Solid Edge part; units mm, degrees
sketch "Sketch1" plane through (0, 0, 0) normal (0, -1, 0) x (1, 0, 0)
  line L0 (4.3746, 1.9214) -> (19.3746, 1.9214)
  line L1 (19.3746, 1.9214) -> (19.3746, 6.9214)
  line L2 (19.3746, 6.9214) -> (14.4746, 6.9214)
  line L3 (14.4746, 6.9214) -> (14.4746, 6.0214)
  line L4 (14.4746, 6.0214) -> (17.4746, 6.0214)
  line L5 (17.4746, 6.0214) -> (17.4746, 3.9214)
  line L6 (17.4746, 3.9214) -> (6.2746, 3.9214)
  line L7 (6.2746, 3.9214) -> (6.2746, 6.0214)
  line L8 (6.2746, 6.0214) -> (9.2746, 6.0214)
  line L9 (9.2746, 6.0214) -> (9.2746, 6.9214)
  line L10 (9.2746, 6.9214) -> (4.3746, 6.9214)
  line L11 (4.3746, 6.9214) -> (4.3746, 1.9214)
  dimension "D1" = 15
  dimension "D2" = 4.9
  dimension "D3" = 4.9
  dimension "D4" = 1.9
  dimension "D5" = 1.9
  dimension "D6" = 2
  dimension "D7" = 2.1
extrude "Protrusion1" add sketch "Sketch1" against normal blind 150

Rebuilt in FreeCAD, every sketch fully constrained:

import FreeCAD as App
import Part
import Sketcher
Q = App.Units.Quantity

doc = App.newDocument("Part")
body = doc.addObject("PartDesign::Body", "Body")

# Sketch on XZ plane
sketch1 = body.newObject("Sketcher::SketchObject", "Sketch")
sketch1.AttachmentSupport = (doc.getObject("XZ_Plane"), [""])
sketch1.MapMode = "FlatFace"
sketch1.addGeometry(Part.LineSegment(App.Vector(4.4, 6.9, 0), App.Vector(4.4, 1.9, 0)), False)
sketch1.addGeometry(Part.LineSegment(App.Vector(4.4, 1.9, 0), App.Vector(19.4, 1.9, 0)), False)
sketch1.addGeometry(Part.LineSegment(App.Vector(19.4, 1.9, 0), App.Vector(19.4, 6.9, 0)), False)
sketch1.addGeometry(Part.LineSegment(App.Vector(19.4, 6.9, 0), App.Vector(14.5, 6.9, 0)), False)
sketch1.addGeometry(Part.LineSegment(App.Vector(14.5, 6.9, 0), App.Vector(14.5, 6, 0)), False)
sketch1.addGeometry(Part.LineSegment(App.Vector(14.5, 6, 0), App.Vector(17.5, 6, 0)), False)
sketch1.addGeometry(Part.LineSegment(App.Vector(17.5, 6, 0), App.Vector(17.5, 3.9, 0)), False)
sketch1.addGeometry(Part.LineSegment(App.Vector(17.5, 3.9, 0), App.Vector(6.3, 3.9, 0)), False)
sketch1.addGeometry(Part.LineSegment(App.Vector(6.3, 3.9, 0), App.Vector(6.3, 6, 0)), False)
sketch1.addGeometry(Part.LineSegment(App.Vector(6.3, 6, 0), App.Vector(9.3, 6, 0)), False)
sketch1.addGeometry(Part.LineSegment(App.Vector(9.3, 6, 0), App.Vector(9.3, 6.9, 0)), False)
sketch1.addGeometry(Part.LineSegment(App.Vector(9.3, 6.9, 0), App.Vector(4.4, 6.9, 0)), False)
sketch1.addConstraint(Sketcher.Constraint("Coincident", 0, 2, 1, 1))
sketch1.addConstraint(Sketcher.Constraint("Coincident", 1, 2, 2, 1))
sketch1.addConstraint(Sketcher.Constraint("Coincident", 2, 2, 3, 1))
sketch1.addConstraint(Sketcher.Constraint("Coincident", 3, 2, 4, 1))
sketch1.addConstraint(Sketcher.Constraint("Coincident", 4, 2, 5, 1))
sketch1.addConstraint(Sketcher.Constraint("Coincident", 5, 2, 6, 1))
sketch1.addConstraint(Sketcher.Constraint("Coincident", 6, 2, 7, 1))
sketch1.addConstraint(Sketcher.Constraint("Coincident", 7, 2, 8, 1))
sketch1.addConstraint(Sketcher.Constraint("Coincident", 8, 2, 9, 1))
sketch1.addConstraint(Sketcher.Constraint("Coincident", 9, 2, 10, 1))
sketch1.addConstraint(Sketcher.Constraint("Coincident", 10, 2, 11, 1))
sketch1.addConstraint(Sketcher.Constraint("Coincident", 11, 2, 0, 1))
sketch1.addConstraint(Sketcher.Constraint("Vertical", 0))
sketch1.addConstraint(Sketcher.Constraint("Horizontal", 1))
sketch1.addConstraint(Sketcher.Constraint("Vertical", 2))
sketch1.addConstraint(Sketcher.Constraint("Horizontal", 3))
sketch1.addConstraint(Sketcher.Constraint("Vertical", 4))
sketch1.addConstraint(Sketcher.Constraint("Horizontal", 5))
sketch1.addConstraint(Sketcher.Constraint("Vertical", 6))
sketch1.addConstraint(Sketcher.Constraint("Horizontal", 7))
sketch1.addConstraint(Sketcher.Constraint("Vertical", 8))
sketch1.addConstraint(Sketcher.Constraint("Horizontal", 9))
sketch1.addConstraint(Sketcher.Constraint("Vertical", 10))
sketch1.addConstraint(Sketcher.Constraint("Horizontal", 11))
sketch1.addConstraint(Sketcher.Constraint("Horizontal", 5, 2, 8, 2))
sketch1.addConstraint(Sketcher.Constraint("Horizontal", 3, 2, 10, 2))
sketch1.addConstraint(Sketcher.Constraint("Equal", 5, 9))
sketch1.addConstraint(Sketcher.Constraint("Equal", 3, 11))
sketch1.addConstraint(Sketcher.Constraint("DistanceX", 1, 1, 1, 2, Q("15 mm")))
sketch1.addConstraint(Sketcher.Constraint("DistanceX", 5, 1, 5, 2, Q("3 mm")))
sketch1.addConstraint(Sketcher.Constraint("DistanceY", 0, 2, 0, 1, Q("5 mm")))
sketch1.addConstraint(Sketcher.Constraint("DistanceX", 3, 2, 3, 1, Q("4.9 mm")))
sketch1.addConstraint(Sketcher.Constraint("DistanceY", 4, 2, 4, 1, Q("0.9 mm")))
sketch1.addConstraint(Sketcher.Constraint("DistanceY", 6, 2, 6, 1, Q("2.1 mm")))
sketch1.addConstraint(Sketcher.Constraint("DistanceX", -1, 1, 0, 2, Q("4.3746 mm")))
sketch1.addConstraint(Sketcher.Constraint("DistanceY", -1, 1, 0, 2, Q("1.9214 mm")))
pad1 = body.newObject("PartDesign::Pad", "Pad")
pad1.Profile = sketch1
pad1.Length = 150
pad1.Reversed = True

doc.recompute()
